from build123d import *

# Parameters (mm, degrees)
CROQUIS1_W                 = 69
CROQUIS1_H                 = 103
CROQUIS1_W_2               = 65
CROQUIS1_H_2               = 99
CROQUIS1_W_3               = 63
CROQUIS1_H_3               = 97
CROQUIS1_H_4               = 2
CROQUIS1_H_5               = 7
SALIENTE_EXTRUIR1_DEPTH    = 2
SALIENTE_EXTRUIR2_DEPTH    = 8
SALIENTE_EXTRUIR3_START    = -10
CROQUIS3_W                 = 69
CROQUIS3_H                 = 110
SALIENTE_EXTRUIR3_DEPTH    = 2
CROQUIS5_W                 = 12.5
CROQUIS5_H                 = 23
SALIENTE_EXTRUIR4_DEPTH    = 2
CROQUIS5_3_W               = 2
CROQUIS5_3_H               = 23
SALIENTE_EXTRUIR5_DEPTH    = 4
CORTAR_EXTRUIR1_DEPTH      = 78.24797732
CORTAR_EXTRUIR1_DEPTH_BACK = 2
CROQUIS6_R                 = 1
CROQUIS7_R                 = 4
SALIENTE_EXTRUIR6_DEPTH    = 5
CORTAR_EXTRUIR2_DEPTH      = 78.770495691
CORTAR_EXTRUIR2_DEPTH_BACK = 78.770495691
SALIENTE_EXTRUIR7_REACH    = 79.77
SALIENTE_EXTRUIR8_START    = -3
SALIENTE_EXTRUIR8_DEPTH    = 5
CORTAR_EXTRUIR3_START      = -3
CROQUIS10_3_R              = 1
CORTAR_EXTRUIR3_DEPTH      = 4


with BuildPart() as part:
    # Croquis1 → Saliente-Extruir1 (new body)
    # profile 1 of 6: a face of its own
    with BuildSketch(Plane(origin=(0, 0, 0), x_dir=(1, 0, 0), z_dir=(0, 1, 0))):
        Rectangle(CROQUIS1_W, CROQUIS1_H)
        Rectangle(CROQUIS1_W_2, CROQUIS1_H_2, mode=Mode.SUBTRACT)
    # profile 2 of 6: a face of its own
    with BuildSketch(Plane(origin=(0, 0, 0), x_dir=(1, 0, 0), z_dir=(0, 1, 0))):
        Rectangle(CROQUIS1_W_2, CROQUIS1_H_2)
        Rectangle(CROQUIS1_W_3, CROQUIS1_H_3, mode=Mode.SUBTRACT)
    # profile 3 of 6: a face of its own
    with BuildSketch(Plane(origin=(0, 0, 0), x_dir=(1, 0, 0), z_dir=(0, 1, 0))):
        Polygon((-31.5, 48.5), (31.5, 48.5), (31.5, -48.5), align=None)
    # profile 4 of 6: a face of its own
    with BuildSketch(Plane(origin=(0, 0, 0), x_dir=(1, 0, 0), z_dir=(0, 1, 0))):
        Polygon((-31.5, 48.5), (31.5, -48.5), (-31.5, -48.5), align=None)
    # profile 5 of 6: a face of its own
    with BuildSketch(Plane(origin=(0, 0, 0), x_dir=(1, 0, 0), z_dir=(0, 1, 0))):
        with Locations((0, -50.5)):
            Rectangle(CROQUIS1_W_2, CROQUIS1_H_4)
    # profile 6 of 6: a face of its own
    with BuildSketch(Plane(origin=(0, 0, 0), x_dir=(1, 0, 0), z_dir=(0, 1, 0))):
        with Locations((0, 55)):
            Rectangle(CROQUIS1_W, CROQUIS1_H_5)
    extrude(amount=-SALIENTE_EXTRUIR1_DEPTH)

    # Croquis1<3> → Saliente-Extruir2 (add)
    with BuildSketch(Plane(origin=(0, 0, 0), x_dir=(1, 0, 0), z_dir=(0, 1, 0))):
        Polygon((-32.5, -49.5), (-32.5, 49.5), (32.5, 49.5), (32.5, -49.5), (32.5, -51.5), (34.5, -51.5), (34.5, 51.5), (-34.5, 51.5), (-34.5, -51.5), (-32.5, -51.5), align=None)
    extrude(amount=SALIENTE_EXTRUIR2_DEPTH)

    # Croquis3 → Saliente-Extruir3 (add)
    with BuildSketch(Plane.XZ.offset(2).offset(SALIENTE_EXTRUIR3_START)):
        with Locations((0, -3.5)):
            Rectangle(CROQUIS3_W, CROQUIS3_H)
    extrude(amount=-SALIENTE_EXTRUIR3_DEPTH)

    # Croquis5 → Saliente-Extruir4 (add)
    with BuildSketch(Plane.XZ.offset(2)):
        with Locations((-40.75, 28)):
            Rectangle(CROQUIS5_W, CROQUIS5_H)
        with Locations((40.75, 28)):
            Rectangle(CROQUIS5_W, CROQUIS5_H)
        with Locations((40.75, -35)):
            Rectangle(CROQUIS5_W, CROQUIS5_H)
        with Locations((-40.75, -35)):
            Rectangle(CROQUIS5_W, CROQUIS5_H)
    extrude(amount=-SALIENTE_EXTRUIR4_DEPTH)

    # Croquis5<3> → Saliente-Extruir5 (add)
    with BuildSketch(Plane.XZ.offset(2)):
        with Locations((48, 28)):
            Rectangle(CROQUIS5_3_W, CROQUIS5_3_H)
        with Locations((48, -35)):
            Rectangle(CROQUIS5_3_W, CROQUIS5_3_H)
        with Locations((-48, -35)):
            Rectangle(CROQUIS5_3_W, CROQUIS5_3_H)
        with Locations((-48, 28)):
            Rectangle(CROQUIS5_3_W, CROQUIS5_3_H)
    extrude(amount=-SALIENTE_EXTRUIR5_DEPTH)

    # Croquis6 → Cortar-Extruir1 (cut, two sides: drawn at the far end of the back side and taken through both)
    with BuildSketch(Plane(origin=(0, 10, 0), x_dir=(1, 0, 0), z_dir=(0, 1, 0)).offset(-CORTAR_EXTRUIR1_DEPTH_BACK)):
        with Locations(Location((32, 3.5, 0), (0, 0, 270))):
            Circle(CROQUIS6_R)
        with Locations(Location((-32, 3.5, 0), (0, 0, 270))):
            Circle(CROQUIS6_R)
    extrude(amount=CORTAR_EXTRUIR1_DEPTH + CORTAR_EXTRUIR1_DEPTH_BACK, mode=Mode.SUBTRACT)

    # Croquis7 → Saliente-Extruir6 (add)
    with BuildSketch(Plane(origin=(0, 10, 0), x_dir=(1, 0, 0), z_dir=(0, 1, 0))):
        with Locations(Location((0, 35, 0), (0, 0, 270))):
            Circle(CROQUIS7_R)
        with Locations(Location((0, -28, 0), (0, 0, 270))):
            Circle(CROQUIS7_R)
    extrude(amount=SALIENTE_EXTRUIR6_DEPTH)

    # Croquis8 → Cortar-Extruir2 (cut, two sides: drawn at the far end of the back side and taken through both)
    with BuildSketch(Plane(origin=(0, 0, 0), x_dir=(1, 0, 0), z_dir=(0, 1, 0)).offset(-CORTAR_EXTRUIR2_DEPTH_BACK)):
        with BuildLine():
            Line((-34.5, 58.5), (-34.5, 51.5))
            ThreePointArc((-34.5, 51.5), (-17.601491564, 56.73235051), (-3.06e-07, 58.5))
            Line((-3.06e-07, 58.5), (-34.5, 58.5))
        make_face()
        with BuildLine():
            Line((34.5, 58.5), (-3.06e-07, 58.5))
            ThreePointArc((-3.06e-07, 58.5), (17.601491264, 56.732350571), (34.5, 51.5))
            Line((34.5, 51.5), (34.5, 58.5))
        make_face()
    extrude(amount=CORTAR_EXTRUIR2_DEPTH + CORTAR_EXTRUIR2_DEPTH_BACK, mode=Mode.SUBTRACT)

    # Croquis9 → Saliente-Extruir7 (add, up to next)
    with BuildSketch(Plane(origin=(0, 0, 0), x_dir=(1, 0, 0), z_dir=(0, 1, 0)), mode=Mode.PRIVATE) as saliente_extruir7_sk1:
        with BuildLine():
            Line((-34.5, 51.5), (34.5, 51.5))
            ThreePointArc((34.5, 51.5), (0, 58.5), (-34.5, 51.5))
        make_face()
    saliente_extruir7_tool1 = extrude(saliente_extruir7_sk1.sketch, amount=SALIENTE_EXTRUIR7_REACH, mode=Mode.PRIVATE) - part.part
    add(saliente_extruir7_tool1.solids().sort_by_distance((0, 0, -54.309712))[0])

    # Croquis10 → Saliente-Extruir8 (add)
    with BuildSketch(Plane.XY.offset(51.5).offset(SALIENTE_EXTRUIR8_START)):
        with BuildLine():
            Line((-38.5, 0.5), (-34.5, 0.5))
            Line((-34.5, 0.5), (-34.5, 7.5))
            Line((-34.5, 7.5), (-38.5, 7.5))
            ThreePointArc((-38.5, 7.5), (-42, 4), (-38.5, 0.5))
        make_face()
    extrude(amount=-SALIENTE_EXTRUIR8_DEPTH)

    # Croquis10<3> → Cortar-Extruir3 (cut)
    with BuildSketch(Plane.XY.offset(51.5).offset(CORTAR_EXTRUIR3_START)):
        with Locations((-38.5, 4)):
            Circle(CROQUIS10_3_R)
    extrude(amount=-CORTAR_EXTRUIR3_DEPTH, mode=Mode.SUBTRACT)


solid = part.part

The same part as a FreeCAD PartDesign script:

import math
import FreeCAD as App
import Part
import Sketcher

V = App.Vector

doc = App.newDocument("Part")
body = doc.addObject("PartDesign::Body", "Body")

# Sketch on XZ plane
sketch1 = doc.addObject("Sketcher::SketchObject", "Sketch")
body.addObject(sketch1)
sketch1.AttachmentSupport = (doc.XZ_Plane, [""])
sketch1.MapMode = "FlatFace"
sketch1.addGeometry([
    Part.LineSegment(V(-34, 52, 0), V(34, 52, 0)),
    Part.LineSegment(V(34, 52, 0), V(34, -58, 0)),
    Part.LineSegment(V(34, -58, 0), V(-34, -58, 0)),
    Part.LineSegment(V(-34, -58, 0), V(-34, 52, 0)),
], False)
sketch1.addConstraint([
    Sketcher.Constraint("Coincident", 0, 2, 1, 1),
    Sketcher.Constraint("Coincident", 1, 2, 2, 1),
    Sketcher.Constraint("Coincident", 2, 2, 3, 1),
    Sketcher.Constraint("Coincident", 3, 2, 0, 1),
    Sketcher.Constraint("Horizontal", 0),
    Sketcher.Constraint("Vertical", 1),
    Sketcher.Constraint("Horizontal", 2),
    Sketcher.Constraint("Vertical", 3),
    Sketcher.Constraint("DistanceX", 0, 1, 0, 2, 69.0),
    Sketcher.Constraint("DistanceY", 1, 2, 1, 1, 110.0),
    Sketcher.Constraint("DistanceX", -1, 1, 0, 2, 34.5),
    Sketcher.Constraint("DistanceY", -1, 1, 0, 2, 51.5),
])
pad1 = doc.addObject("PartDesign::Pad", "Pad")
body.addObject(pad1)
pad1.Profile = sketch1
pad1.Length = 2

# Sketch on XZ plane
sketch2 = doc.addObject("Sketcher::SketchObject", "Sketch001")
body.addObject(sketch2)
sketch2.AttachmentSupport = (doc.XZ_Plane, [""])
sketch2.MapMode = "FlatFace"
sketch2.addGeometry([
    Part.LineSegment(V(-32.5, -49.5, 0), V(32.5, -49.5, 0)),  # 0
    Part.LineSegment(V(32.5, -49.5, 0), V(32.5, 51.5, 0)),  # 1
    Part.LineSegment(V(32.5, 51.5, 0), V(34.5, 51.5, 0)),  # 2
    Part.LineSegment(V(34.5, 51.5, 0), V(34.5, -51.5, 0)),  # 3
    Part.LineSegment(V(34.5, -51.5, 0), V(-34.5, -51.5, 0)),  # 4
    Part.LineSegment(V(-34.5, -51.5, 0), V(-34.5, 51.5, 0)),  # 5
    Part.LineSegment(V(-34.5, 51.5, 0), V(-32.5, 51.5, 0)),  # 6
    Part.LineSegment(V(-32.5, 51.5, 0), V(-32.5, -49.5, 0)),  # 7
], False)
sketch2.addConstraint([
    Sketcher.Constraint("Coincident", 0, 2, 1, 1),
    Sketcher.Constraint("Coincident", 1, 2, 2, 1),
    Sketcher.Constraint("Coincident", 2, 2, 3, 1),
    Sketcher.Constraint("Coincident", 3, 2, 4, 1),
    Sketcher.Constraint("Coincident", 4, 2, 5, 1),
    Sketcher.Constraint("Coincident", 5, 2, 6, 1),
    Sketcher.Constraint("Coincident", 6, 2, 7, 1),
    Sketcher.Constraint("Coincident", 7, 2, 0, 1),
    Sketcher.Constraint("Horizontal", 0),
    Sketcher.Constraint("Vertical", 1),
    Sketcher.Constraint("Horizontal", 2),
    Sketcher.Constraint("Vertical", 3),
    Sketcher.Constraint("Horizontal", 4),
    Sketcher.Constraint("Vertical", 5),
    Sketcher.Constraint("Horizontal", 6),
    Sketcher.Constraint("Vertical", 7),
    Sketcher.Constraint("Symmetric", 2, 2, 4, 2, -1, 1),
    Sketcher.Constraint("Symmetric", 1, 2, 6, 2, -2),
    Sketcher.Constraint("DistanceX", 0, 1, 0, 2, 65.0),
    Sketcher.Constraint("DistanceX", 2, 1, 2, 2, 2.0),
    Sketcher.Constraint("DistanceY", 1, 1, 1, 2, 101.0),
    Sketcher.Constraint("DistanceY", 3, 2, 3, 1, 103.0),
])
pad2 = doc.addObject("PartDesign::Pad", "Pad001")
body.addObject(pad2)
pad2.Profile = sketch2
pad2.Length = 8
pad2.Reversed = True

# Sketch on XZ plane
sketch3 = doc.addObject("Sketcher::SketchObject", "Sketch002")
body.addObject(sketch3)
sketch3.AttachmentSupport = (doc.XZ_Plane, [""])
sketch3.MapMode = "FlatFace"
sketch3.AttachmentOffset = App.Placement(V(0, 0, -8), App.Rotation())
sketch3.addGeometry([
    Part.LineSegment(V(-34, 52, 0), V(-34, -58, 0)),
    Part.LineSegment(V(-34, -58, 0), V(34, -58, 0)),
    Part.LineSegment(V(34, -58, 0), V(34, 52, 0)),
    Part.LineSegment(V(34, 52, 0), V(-34, 52, 0)),
], False)
sketch3.addConstraint([
    Sketcher.Constraint("Coincident", 0, 2, 1, 1),
    Sketcher.Constraint("Coincident", 1, 2, 2, 1),
    Sketcher.Constraint("Coincident", 2, 2, 3, 1),
    Sketcher.Constraint("Coincident", 3, 2, 0, 1),
    Sketcher.Constraint("Vertical", 0),
    Sketcher.Constraint("Horizontal", 1),
    Sketcher.Constraint("Vertical", 2),
    Sketcher.Constraint("Horizontal", 3),
    Sketcher.Constraint("DistanceX", 1, 1, 1, 2, 69.0),
    Sketcher.Constraint("DistanceY", 0, 2, 0, 1, 110.0),
    Sketcher.Constraint("DistanceX", 0, 2, -1, 1, 34.5),
    Sketcher.Constraint("DistanceY", 0, 2, -1, 1, 58.5),
])
pad3 = doc.addObject("PartDesign::Pad", "Pad002")
body.addObject(pad3)
pad3.Profile = sketch3
pad3.Length = 2
pad3.Reversed = True

# Sketch on XZ plane
sketch4 = doc.addObject("Sketcher::SketchObject", "Sketch003")
body.addObject(sketch4)
sketch4.AttachmentSupport = (doc.XZ_Plane, [""])
sketch4.MapMode = "FlatFace"
sketch4.AttachmentOffset = App.Placement(V(0, 0, 2), App.Rotation())
sketch4.addGeometry([
    Part.LineSegment(V(-47, 40, 0), V(-47, 16, 0)),  # 0
    Part.LineSegment(V(-47, 16, 0), V(-34, 16, 0)),  # 1
    Part.LineSegment(V(-34, 16, 0), V(-34, 40, 0)),  # 2
    Part.LineSegment(V(-34, 40, 0), V(-47, 40, 0)),  # 3
    Part.LineSegment(V(34, 40, 0), V(34, 16, 0)),  # 4
    Part.LineSegment(V(34, 16, 0), V(47, 16, 0)),  # 5
    Part.LineSegment(V(47, 16, 0), V(47, 40, 0)),  # 6
    Part.LineSegment(V(47, 40, 0), V(34, 40, 0)),  # 7
    Part.LineSegment(V(34, -24, 0), V(34, -46, 0)),  # 8
    Part.LineSegment(V(34, -46, 0), V(47, -46, 0)),  # 9
    Part.LineSegment(V(47, -46, 0), V(47, -24, 0)),  # 10
    Part.LineSegment(V(47, -24, 0), V(34, -24, 0)),  # 11
    Part.LineSegment(V(-47, -24, 0), V(-47, -46, 0)),  # 12
    Part.LineSegment(V(-47, -46, 0), V(-34, -46, 0)),  # 13
    Part.LineSegment(V(-34, -46, 0), V(-34, -24, 0)),  # 14
    Part.LineSegment(V(-34, -24, 0), V(-47, -24, 0)),  # 15
], False)
sketch4.addConstraint([
    Sketcher.Constraint("Coincident", 0, 2, 1, 1),
    Sketcher.Constraint("Coincident", 1, 2, 2, 1),
    Sketcher.Constraint("Coincident", 2, 2, 3, 1),
    Sketcher.Constraint("Coincident", 3, 2, 0, 1),
    Sketcher.Constraint("Coincident", 4, 2, 5, 1),
    Sketcher.Constraint("Coincident", 5, 2, 6, 1),
    Sketcher.Constraint("Coincident", 6, 2, 7, 1),
    Sketcher.Constraint("Coincident", 7, 2, 4, 1),
    Sketcher.Constraint("Coincident", 8, 2, 9, 1),
    Sketcher.Constraint("Coincident", 9, 2, 10, 1),
    Sketcher.Constraint("Coincident", 10, 2, 11, 1),
    Sketcher.Constraint("Coincident", 11, 2, 8, 1),
    Sketcher.Constraint("Coincident", 12, 2, 13, 1),
    Sketcher.Constraint("Coincident", 13, 2, 14, 1),
    Sketcher.Constraint("Coincident", 14, 2, 15, 1),
    Sketcher.Constraint("Coincident", 15, 2, 12, 1),
    Sketcher.Constraint("Vertical", 0),
    Sketcher.Constraint("Horizontal", 1),
    Sketcher.Constraint("Vertical", 2),
    Sketcher.Constraint("Horizontal", 3),
    Sketcher.Constraint("Vertical", 4),
    Sketcher.Constraint("Horizontal", 5),
    Sketcher.Constraint("Vertical", 6),
    Sketcher.Constraint("Horizontal", 7),
    Sketcher.Constraint("Vertical", 8),
    Sketcher.Constraint("Horizontal", 9),
    Sketcher.Constraint("Vertical", 10),
    Sketcher.Constraint("Horizontal", 11),
    Sketcher.Constraint("Vertical", 12),
    Sketcher.Constraint("Horizontal", 13),
    Sketcher.Constraint("Vertical", 14),
    Sketcher.Constraint("Horizontal", 15),
    Sketcher.Constraint("Symmetric", 1, 2, 4, 2, -2),
    Sketcher.Constraint("Symmetric", 3, 2, 6, 2, -2),
    Sketcher.Constraint("Symmetric", 9, 2, 12, 2, -2),
    Sketcher.Constraint("Symmetric", 11, 2, 14, 2, -2),
    Sketcher.Constraint("Vertical", 7, 2, 8, 2),
    Sketcher.Constraint("Vertical", 6, 2, 9, 2),
    Sketcher.Constraint("Equal", 6, 8),
    Sketcher.Constraint("DistanceY", 0, 2, 0, 1, 23.0),
    Sketcher.Constraint("DistanceX", 1, 1, 1, 2, 12.5),
    Sketcher.Constraint("DistanceX", 0, 2, -1, 1, 47.0),
    Sketcher.Constraint("DistanceY", 8, 2, 4, 2, 63.0),
    Sketcher.Constraint("DistanceY", -1, 1, 0, 2, 16.5),
])
pad4 = doc.addObject("PartDesign::Pad", "Pad003")
body.addObject(pad4)
pad4.Profile = sketch4
pad4.Length = 2
pad4.Reversed = True

# Sketch on XZ plane
sketch5 = doc.addObject("Sketcher::SketchObject", "Sketch004")
body.addObject(sketch5)
sketch5.AttachmentSupport = (doc.XZ_Plane, [""])
sketch5.MapMode = "FlatFace"
sketch5.AttachmentOffset = App.Placement(V(0, 0, 2), App.Rotation())
sketch5.addGeometry([
    Part.LineSegment(V(47, 39.5, 0), V(47, 16.5, 0)),  # 0
    Part.LineSegment(V(47, 16.5, 0), V(49, 16.5, 0)),  # 1
    Part.LineSegment(V(49, 16.5, 0), V(49, 39.5, 0)),  # 2
    Part.LineSegment(V(49, 39.5, 0), V(47, 39.5, 0)),  # 3
    Part.LineSegment(V(47, -23.5, 0), V(47, -46.5, 0)),  # 4
    Part.LineSegment(V(47, -46.5, 0), V(49, -46.5, 0)),  # 5
    Part.LineSegment(V(49, -46.5, 0), V(49, -23.5, 0)),  # 6
    Part.LineSegment(V(49, -23.5, 0), V(47, -23.5, 0)),  # 7
    Part.LineSegment(V(-49, -23.5, 0), V(-49, -46.5, 0)),  # 8
    Part.LineSegment(V(-49, -46.5, 0), V(-47, -46.5, 0)),  # 9
    Part.LineSegment(V(-47, -46.5, 0), V(-47, -23.5, 0)),  # 10
    Part.LineSegment(V(-47, -23.5, 0), V(-49, -23.5, 0)),  # 11
    Part.LineSegment(V(-49, 39.5, 0), V(-49, 16.5, 0)),  # 12
    Part.LineSegment(V(-49, 16.5, 0), V(-47, 16.5, 0)),  # 13
    Part.LineSegment(V(-47, 16.5, 0), V(-47, 39.5, 0)),  # 14
    Part.LineSegment(V(-47, 39.5, 0), V(-49, 39.5, 0)),  # 15
], False)
sketch5.addConstraint([
    Sketcher.Constraint("Coincident", 0, 2, 1, 1),
    Sketcher.Constraint("Coincident", 1, 2, 2, 1),
    Sketcher.Constraint("Coincident", 2, 2, 3, 1),
    Sketcher.Constraint("Coincident", 3, 2, 0, 1),
    Sketcher.Constraint("Coincident", 4, 2, 5, 1),
    Sketcher.Constraint("Coincident", 5, 2, 6, 1),
    Sketcher.Constraint("Coincident", 6, 2, 7, 1),
    Sketcher.Constraint("Coincident", 7, 2, 4, 1),
    Sketcher.Constraint("Coincident", 8, 2, 9, 1),
    Sketcher.Constraint("Coincident", 9, 2, 10, 1),
    Sketcher.Constraint("Coincident", 10, 2, 11, 1),
    Sketcher.Constraint("Coincident", 11, 2, 8, 1),
    Sketcher.Constraint("Coincident", 12, 2, 13, 1),
    Sketcher.Constraint("Coincident", 13, 2, 14, 1),
    Sketcher.Constraint("Coincident", 14, 2, 15, 1),
    Sketcher.Constraint("Coincident", 15, 2, 12, 1),
    Sketcher.Constraint("Vertical", 0),
    Sketcher.Constraint("Horizontal", 1),
    Sketcher.Constraint("Vertical", 2),
    Sketcher.Constraint("Horizontal", 3),
    Sketcher.Constraint("Vertical", 4),
    Sketcher.Constraint("Horizontal", 5),
    Sketcher.Constraint("Vertical", 6),
    Sketcher.Constraint("Horizontal", 7),
    Sketcher.Constraint("Vertical", 8),
    Sketcher.Constraint("Horizontal", 9),
    Sketcher.Constraint("Vertical", 10),
    Sketcher.Constraint("Horizontal", 11),
    Sketcher.Constraint("Vertical", 12),
    Sketcher.Constraint("Horizontal", 13),
    Sketcher.Constraint("Vertical", 14),
    Sketcher.Constraint("Horizontal", 15),
    Sketcher.Constraint("Symmetric", 5, 2, 8, 2, -2),
    Sketcher.Constraint("Symmetric", 7, 2, 10, 2, -2),
    Sketcher.Constraint("Symmetric", 1, 2, 12, 2, -2),
    Sketcher.Constraint("Symmetric", 3, 2, 14, 2, -2),
    Sketcher.Constraint("Vertical", 3, 2, 4, 2),
    Sketcher.Constraint("Vertical", 2, 2, 5, 2),
    Sketcher.Constraint("Equal", 2, 4),
    Sketcher.Constraint("DistanceX", 1, 1, 1, 2, 2.0),
    Sketcher.Constraint("DistanceY", 0, 2, 0, 1, 23.0),
    Sketcher.Constraint("DistanceX", -1, 1, 0, 2, 47.0),
    Sketcher.Constraint("DistanceY", 4, 2, 0, 2, 63.0),
    Sketcher.Constraint("DistanceY", -1, 1, 0, 2, 16.5),
])
pad5 = doc.addObject("PartDesign::Pad", "Pad004")
body.addObject(pad5)
pad5.Profile = sketch5
pad5.Length = 4
pad5.Reversed = True

# Sketch on XZ plane
sketch6 = doc.addObject("Sketcher::SketchObject", "Sketch005")
body.addObject(sketch6)
sketch6.AttachmentSupport = (doc.XZ_Plane, [""])
sketch6.MapMode = "FlatFace"
sketch6.AttachmentOffset = App.Placement(V(0, 0, -10), App.Rotation())
sketch6.addGeometry([
    Part.Circle(V(32, -3.5, 0), V(0, 0, 1), 1),
    Part.Circle(V(-32, -3.5, 0), V(0, 0, 1), 1),
], False)
sketch6.addConstraint([
    Sketcher.Constraint("Equal", 0, 1),
    Sketcher.Constraint("Symmetric", 0, 3, 1, 3, -2),
    Sketcher.Constraint("Diameter", 0, 2.0),
    Sketcher.Constraint("DistanceX", -1, 1, 0, 3, 32.0),
    Sketcher.Constraint("DistanceY", 0, 3, -1, 1, 3.5),
])
pocket1 = doc.addObject("PartDesign::Pocket", "Pocket")
body.addObject(pocket1)
pocket1.Profile = sketch6
pocket1.Type = "TwoLengths"
pocket1.Length = 78.247977
pocket1.Length2 = 2

# Sketch on XZ plane
sketch7 = doc.addObject("Sketcher::SketchObject", "Sketch006")
body.addObject(sketch7)
sketch7.AttachmentSupport = (doc.XZ_Plane, [""])
sketch7.MapMode = "FlatFace"
sketch7.AttachmentOffset = App.Placement(V(0, 0, -10), App.Rotation())
sketch7.addGeometry([
    Part.Circle(V(0, -35, 0), V(0, 0, 1), 4),
    Part.Circle(V(0, 28, 0), V(0, 0, 1), 4),
], False)
sketch7.addConstraint([
    Sketcher.Constraint("Equal", 0, 1),
    Sketcher.Constraint("PointOnObject", 0, 3, -2),
    Sketcher.Constraint("PointOnObject", 1, 3, -2),
    Sketcher.Constraint("Diameter", 0, 8.0),
    Sketcher.Constraint("DistanceY", 0, 3, -1, 1, 35.0),
    Sketcher.Constraint("DistanceY", -1, 1, 1, 3, 28.0),
])
pad6 = doc.addObject("PartDesign::Pad", "Pad005")
body.addObject(pad6)
pad6.Profile = sketch7
pad6.Length = 5
pad6.Reversed = True

# Sketch on XZ plane
sketch8 = doc.addObject("Sketcher::SketchObject", "Sketch007")
body.addObject(sketch8)
sketch8.AttachmentSupport = (doc.XZ_Plane, [""])
sketch8.MapMode = "FlatFace"
sketch8.addGeometry([
    Part.LineSegment(V(-34, -58, 0), V(-34, -52, 0)),  # 0
    Part.ArcOfCircle(Part.Circle(V(0, 30, 0), V(0, 0, 1), 89), math.radians(-113), math.radians(-90)),  # 1
    Part.LineSegment(V(0, -58, 0), V(-34, -58, 0)),  # 2
    Part.LineSegment(V(34, -58, 0), V(0, -58, 0)),  # 3
    Part.ArcOfCircle(Part.Circle(V(0, 30, 0), V(0, 0, 1), 89), math.radians(-90), math.radians(-67)),  # 4
    Part.LineSegment(V(34, -52, 0), V(34, -58, 0)),  # 5
], False)
sketch8.addConstraint([
    Sketcher.Constraint("Coincident", 0, 2, 1, 1),
    Sketcher.Constraint("Tangent", 1, 2, 2, 1),
    Sketcher.Constraint("Coincident", 2, 2, 0, 1),
    Sketcher.Constraint("Tangent", 3, 2, 4, 1),
    Sketcher.Constraint("Coincident", 4, 2, 5, 1),
    Sketcher.Constraint("Coincident", 5, 2, 3, 1),
    Sketcher.Constraint("Vertical", 0),
    Sketcher.Constraint("Horizontal", 2),
    Sketcher.Constraint("Horizontal", 3),
    Sketcher.Constraint("Vertical", 5),
    Sketcher.Constraint("Coincident", 4, 3, 1, 3),
    Sketcher.Constraint("Equal", 1, 4),
    Sketcher.Constraint("Symmetric", 0, 2, 4, 2, -2),
    Sketcher.Constraint("DistanceY", 0, 1, 0, 2, 7.0),
    Sketcher.Constraint("DistanceX", 2, 2, 2, 1, 34.5),
    Sketcher.Constraint("DistanceY", 0, 2, -1, 1, 51.5),
])
pocket2 = doc.addObject("PartDesign::Pocket", "Pocket001")
body.addObject(pocket2)
pocket2.Profile = sketch8
pocket2.Type = "ThroughAll"
pocket2.Midplane = True

# Sketch on XZ plane
sketch9 = doc.addObject("Sketcher::SketchObject", "Sketch008")
body.addObject(sketch9)
sketch9.AttachmentSupport = (doc.XZ_Plane, [""])
sketch9.MapMode = "FlatFace"
sketch9.addGeometry([
    Part.LineSegment(V(-34, -52, 0), V(34, -52, 0)),
    Part.ArcOfCircle(Part.Circle(V(0, 30, 0), V(0, 0, 1), 89), math.radians(-113), math.radians(-67)),
], False)
sketch9.addConstraint([
    Sketcher.Constraint("Coincident", 0, 1, 1, 1),
    Sketcher.Constraint("Coincident", 1, 2, 0, 2),
    Sketcher.Constraint("Horizontal", 0),
    Sketcher.Constraint("PointOnObject", 1, 3, -2),
    Sketcher.Constraint("DistanceX", 0, 1, 0, 2, 69.0),
    Sketcher.Constraint("DistanceY", 0, 1, -1, 1, 51.5),
    Sketcher.Constraint("Radius", 1, 88.517857),
])
pad7 = doc.addObject("PartDesign::Pad", "Pad006")
body.addObject(pad7)
pad7.Profile = sketch9
pad7.Type = "UpToFirst"
pad7.Reversed = True

# Sketch on XY plane
sketch10 = doc.addObject("Sketcher::SketchObject", "Sketch009")
body.addObject(sketch10)
sketch10.AttachmentSupport = (doc.XY_Plane, [""])
sketch10.MapMode = "FlatFace"
sketch10.AttachmentOffset = App.Placement(V(0, 0, 48.5), App.Rotation())
sketch10.addGeometry([
    Part.LineSegment(V(-38.5, 0.5, 0), V(-34.5, 0.5, 0)),
    Part.LineSegment(V(-34.5, 0.5, 0), V(-34.5, 7.5, 0)),
    Part.LineSegment(V(-34.5, 7.5, 0), V(-38.5, 7.5, 0)),
    Part.ArcOfCircle(Part.Circle(V(-38.5, 4, 0), V(0, 0, 1), 3.5), math.radians(90), math.radians(270)),
], False)
sketch10.addConstraint([
    Sketcher.Constraint("Coincident", 0, 2, 1, 1),
    Sketcher.Constraint("Coincident", 1, 2, 2, 1),
    Sketcher.Constraint("Tangent", 2, 2, 3, 1),
    Sketcher.Constraint("Tangent", 3, 2, 0, 1),
    Sketcher.Constraint("Horizontal", 0),
    Sketcher.Constraint("Vertical", 1),
    Sketcher.Constraint("Horizontal", 2),
    Sketcher.Constraint("Radius", 3, 3.5),
    Sketcher.Constraint("DistanceX", 0, 1, 0, 2, 4.0),
    Sketcher.Constraint("DistanceY", -1, 1, 3, 3, 4.0),
    Sketcher.Constraint("DistanceX", 3, 3, -1, 1, 38.5),
])
pad8 = doc.addObject("PartDesign::Pad", "Pad007")
body.addObject(pad8)
pad8.Profile = sketch10
pad8.Length = 5
pad8.Reversed = True

# Sketch on XY plane
sketch11 = doc.addObject("Sketcher::SketchObject", "Sketch010")
body.addObject(sketch11)
sketch11.AttachmentSupport = (doc.XY_Plane, [""])
sketch11.MapMode = "FlatFace"
sketch11.AttachmentOffset = App.Placement(V(0, 0, 48.5), App.Rotation())
sketch11.addGeometry(Part.Circle(V(-38.5, 4, 0), V(0, 0, 1), 1), False)
sketch11.addConstraint([
    Sketcher.Constraint("Diameter", 0, 2.0),
    Sketcher.Constraint("DistanceY", -1, 1, 0, 3, 4.0),
    Sketcher.Constraint("DistanceX", 0, 3, -1, 1, 38.5),
])
pocket3 = doc.addObject("PartDesign::Pocket", "Pocket002")
body.addObject(pocket3)
pocket3.Profile = sketch11
pocket3.Length = 4

doc.recompute()
